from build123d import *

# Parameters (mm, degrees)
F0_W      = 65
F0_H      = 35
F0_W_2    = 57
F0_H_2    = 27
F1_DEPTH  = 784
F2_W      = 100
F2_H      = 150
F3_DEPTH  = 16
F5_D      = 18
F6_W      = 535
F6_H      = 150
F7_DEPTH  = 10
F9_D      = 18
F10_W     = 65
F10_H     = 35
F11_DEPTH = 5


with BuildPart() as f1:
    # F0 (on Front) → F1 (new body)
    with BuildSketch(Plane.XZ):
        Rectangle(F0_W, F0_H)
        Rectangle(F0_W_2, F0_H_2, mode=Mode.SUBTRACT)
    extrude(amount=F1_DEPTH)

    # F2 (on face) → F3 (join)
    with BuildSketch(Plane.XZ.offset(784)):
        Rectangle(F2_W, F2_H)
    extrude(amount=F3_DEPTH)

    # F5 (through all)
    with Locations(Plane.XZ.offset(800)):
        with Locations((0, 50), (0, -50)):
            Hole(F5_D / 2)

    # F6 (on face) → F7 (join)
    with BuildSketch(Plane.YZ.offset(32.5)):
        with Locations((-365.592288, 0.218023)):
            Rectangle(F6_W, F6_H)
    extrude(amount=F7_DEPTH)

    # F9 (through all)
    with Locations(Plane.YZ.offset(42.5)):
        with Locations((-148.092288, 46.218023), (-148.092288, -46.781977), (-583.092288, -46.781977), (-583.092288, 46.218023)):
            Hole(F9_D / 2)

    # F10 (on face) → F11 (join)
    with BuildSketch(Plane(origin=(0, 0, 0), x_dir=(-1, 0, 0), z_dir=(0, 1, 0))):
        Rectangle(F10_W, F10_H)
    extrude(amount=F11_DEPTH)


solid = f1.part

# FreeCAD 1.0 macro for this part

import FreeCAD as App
import Part
import Sketcher
Q = App.Units.Quantity

doc = App.newDocument("Part")
body = doc.addObject("PartDesign::Body", "Body")

sketch1 = doc.addObject("Sketcher::SketchObject", "Sketch")
body.addObject(sketch1)
sketch1.AttachmentSupport = (doc.XZ_Plane, [""])
sketch1.MapMode = "FlatFace"
sketch1.addGeometry(Part.LineSegment(App.Vector(-32, 18, 0), App.Vector(-32, -18, 0)), False)
sketch1.addGeometry(Part.LineSegment(App.Vector(-32, -18, 0), App.Vector(32, -18, 0)), False)
sketch1.addGeometry(Part.LineSegment(App.Vector(32, -18, 0), App.Vector(32, 18, 0)), False)
sketch1.addGeometry(Part.LineSegment(App.Vector(32, 18, 0), App.Vector(-32, 18, 0)), False)
sketch1.addGeometry(Part.LineSegment(App.Vector(28, -14, 0), App.Vector(-28, -14, 0)), False)
sketch1.addGeometry(Part.LineSegment(App.Vector(-28, -14, 0), App.Vector(-28, 14, 0)), False)
sketch1.addGeometry(Part.LineSegment(App.Vector(-28, 14, 0), App.Vector(28, 14, 0)), False)
sketch1.addGeometry(Part.LineSegment(App.Vector(28, 14, 0), App.Vector(28, -14, 0)), False)
sketch1.addConstraint(Sketcher.Constraint("Coincident", 0, 2, 1, 1))
sketch1.addConstraint(Sketcher.Constraint("Coincident", 1, 2, 2, 1))
sketch1.addConstraint(Sketcher.Constraint("Coincident", 2, 2, 3, 1))
sketch1.addConstraint(Sketcher.Constraint("Coincident", 3, 2, 0, 1))
sketch1.addConstraint(Sketcher.Constraint("Coincident", 4, 2, 5, 1))
sketch1.addConstraint(Sketcher.Constraint("Coincident", 5, 2, 6, 1))
sketch1.addConstraint(Sketcher.Constraint("Coincident", 6, 2, 7, 1))
sketch1.addConstraint(Sketcher.Constraint("Coincident", 7, 2, 4, 1))
sketch1.addConstraint(Sketcher.Constraint("Vertical", 0))
sketch1.addConstraint(Sketcher.Constraint("Horizontal", 1))
sketch1.addConstraint(Sketcher.Constraint("Vertical", 2))
sketch1.addConstraint(Sketcher.Constraint("Horizontal", 3))
sketch1.addConstraint(Sketcher.Constraint("Horizontal", 4))
sketch1.addConstraint(Sketcher.Constraint("Vertical", 5))
sketch1.addConstraint(Sketcher.Constraint("Horizontal", 6))
sketch1.addConstraint(Sketcher.Constraint("Vertical", 7))
sketch1.addConstraint(Sketcher.Constraint("Symmetric", 0, 2, 2, 2, -1, 1))
sketch1.addConstraint(Sketcher.Constraint("Symmetric", 4, 2, 6, 2, -1, 1))
sketch1.addConstraint(Sketcher.Constraint("DistanceX", 1, 1, 1, 2, Q("65 mm")))
sketch1.addConstraint(Sketcher.Constraint("DistanceX", 4, 2, 4, 1, Q("57 mm")))
sketch1.addConstraint(Sketcher.Constraint("DistanceY", 0, 2, 0, 1, Q("35 mm")))
sketch1.addConstraint(Sketcher.Constraint("DistanceY", 5, 1, 5, 2, Q("27 mm")))
pad1 = doc.addObject("PartDesign::Pad", "Pad")
body.addObject(pad1)
pad1.Profile = sketch1
pad1.Length = 784

sketch2 = doc.addObject("Sketcher::SketchObject", "Sketch001")
body.addObject(sketch2)
sketch2.AttachmentSupport = (doc.XZ_Plane, [""])
sketch2.MapMode = "FlatFace"
sketch2.AttachmentOffset = App.Placement(App.Vector(0, 0, 784), App.Rotation())
sketch2.addGeometry(Part.LineSegment(App.Vector(-50, 75, 0), App.Vector(-50, -75, 0)), False)
sketch2.addGeometry(Part.LineSegment(App.Vector(-50, -75, 0), App.Vector(50, -75, 0)), False)
sketch2.addGeometry(Part.LineSegment(App.Vector(50, -75, 0), App.Vector(50, 75, 0)), False)
sketch2.addGeometry(Part.LineSegment(App.Vector(50, 75, 0), App.Vector(-50, 75, 0)), False)
sketch2.addConstraint(Sketcher.Constraint("Coincident", 0, 2, 1, 1))
sketch2.addConstraint(Sketcher.Constraint("Coincident", 1, 2, 2, 1))
sketch2.addConstraint(Sketcher.Constraint("Coincident", 2, 2, 3, 1))
sketch2.addConstraint(Sketcher.Constraint("Coincident", 3, 2, 0, 1))
sketch2.addConstraint(Sketcher.Constraint("Vertical", 0))
sketch2.addConstraint(Sketcher.Constraint("Horizontal", 1))
sketch2.addConstraint(Sketcher.Constraint("Vertical", 2))
sketch2.addConstraint(Sketcher.Constraint("Horizontal", 3))
sketch2.addConstraint(Sketcher.Constraint("Symmetric", 0, 2, 2, 2, -1, 1))
sketch2.addConstraint(Sketcher.Constraint("DistanceX", 1, 1, 1, 2, Q("100 mm")))
sketch2.addConstraint(Sketcher.Constraint("DistanceY", 0, 2, 0, 1, Q("150 mm")))
pad2 = doc.addObject("PartDesign::Pad", "Pad001")
body.addObject(pad2)
pad2.Profile = sketch2
pad2.Length = 16

sketch3 = doc.addObject("Sketcher::SketchObject", "Sketch002")
body.addObject(sketch3)
sketch3.AttachmentSupport = (doc.XZ_Plane, [""])
sketch3.MapMode = "FlatFace"
sketch3.AttachmentOffset = App.Placement(App.Vector(0, 0, 800), App.Rotation())
sketch3.addGeometry(Part.Circle(App.Vector(0, 50, 0), App.Vector(0, 0, 1), 9), False)
sketch3.addGeometry(Part.Circle(App.Vector(0, -50, 0), App.Vector(0, 0, 1), 9), False)
sketch3.addConstraint(Sketcher.Constraint("Equal", 0, 1))
sketch3.addConstraint(Sketcher.Constraint("Symmetric", 0, 3, 1, 3, -1, 1))
sketch3.addConstraint(Sketcher.Constraint("PointOnObject", 0, 3, -2))
sketch3.addConstraint(Sketcher.Constraint("Diameter", 0, Q("18 mm")))
sketch3.addConstraint(Sketcher.Constraint("DistanceY", -1, 1, 0, 3, Q("50 mm")))
doc.recompute()
hole = doc.addObject("PartDesign::Hole", "Hole")
body.addObject(hole)
hole.Profile = sketch3
hole.ThreadType = "None"
hole.Diameter = 18
hole.DepthType = "ThroughAll"

sketch4 = doc.addObject("Sketcher::SketchObject", "Sketch003")
body.addObject(sketch4)
sketch4.AttachmentSupport = (doc.YZ_Plane, [""])
sketch4.MapMode = "FlatFace"
sketch4.AttachmentOffset = App.Placement(App.Vector(0, 0, 32.5), App.Rotation())
sketch4.addGeometry(Part.LineSegment(App.Vector(-633, 75, 0), App.Vector(-633, -75, 0)), False)
sketch4.addGeometry(Part.LineSegment(App.Vector(-633, -75, 0), App.Vector(-98, -75, 0)), False)
sketch4.addGeometry(Part.LineSegment(App.Vector(-98, -75, 0), App.Vector(-98, 75, 0)), False)
sketch4.addGeometry(Part.LineSegment(App.Vector(-98, 75, 0), App.Vector(-633, 75, 0)), False)
sketch4.addConstraint(Sketcher.Constraint("Coincident", 0, 2, 1, 1))
sketch4.addConstraint(Sketcher.Constraint("Coincident", 1, 2, 2, 1))
sketch4.addConstraint(Sketcher.Constraint("Coincident", 2, 2, 3, 1))
sketch4.addConstraint(Sketcher.Constraint("Coincident", 3, 2, 0, 1))
sketch4.addConstraint(Sketcher.Constraint("Vertical", 0))
sketch4.addConstraint(Sketcher.Constraint("Horizontal", 1))
sketch4.addConstraint(Sketcher.Constraint("Vertical", 2))
sketch4.addConstraint(Sketcher.Constraint("Horizontal", 3))
sketch4.addConstraint(Sketcher.Constraint("DistanceX", 1, 1, 1, 2, Q("535 mm")))
sketch4.addConstraint(Sketcher.Constraint("DistanceY", 0, 2, 0, 1, Q("150 mm")))
sketch4.addConstraint(Sketcher.Constraint("DistanceX", 0, 2, -1, 1, Q("633.092288 mm")))
sketch4.addConstraint(Sketcher.Constraint("DistanceY", 0, 2, -1, 1, Q("74.781977 mm")))
pad3 = doc.addObject("PartDesign::Pad", "Pad002")
body.addObject(pad3)
pad3.Profile = sketch4
pad3.Length = 10

sketch5 = doc.addObject("Sketcher::SketchObject", "Sketch004")
body.addObject(sketch5)
sketch5.AttachmentSupport = (doc.YZ_Plane, [""])
sketch5.MapMode = "FlatFace"
sketch5.AttachmentOffset = App.Placement(App.Vector(0, 0, 42.5), App.Rotation())
sketch5.addGeometry(Part.Circle(App.Vector(-148, 46, 0), App.Vector(0, 0, 1), 9), False)
sketch5.addGeometry(Part.Circle(App.Vector(-148, -47, 0), App.Vector(0, 0, 1), 9), False)
sketch5.addGeometry(Part.Circle(App.Vector(-583, -47, 0), App.Vector(0, 0, 1), 9), False)
sketch5.addGeometry(Part.Circle(App.Vector(-583, 46, 0), App.Vector(0, 0, 1), 9), False)
sketch5.addConstraint(Sketcher.Constraint("Equal", 0, 1))
sketch5.addConstraint(Sketcher.Constraint("Equal", 1, 2))
sketch5.addConstraint(Sketcher.Constraint("Equal", 2, 3))
sketch5.addConstraint(Sketcher.Constraint("Horizontal", 1, 3, 2, 3))
sketch5.addConstraint(Sketcher.Constraint("Horizontal", 0, 3, 3, 3))
sketch5.addConstraint(Sketcher.Constraint("Vertical", 0, 3, 1, 3))
sketch5.addConstraint(Sketcher.Constraint("Vertical", 2, 3, 3, 3))
sketch5.addConstraint(Sketcher.Constraint("Diameter", 0, Q("18 mm")))
sketch5.addConstraint(Sketcher.Constraint("DistanceY", 1, 3, 0, 3, Q("93 mm")))
sketch5.addConstraint(Sketcher.Constraint("DistanceX", 2, 3, 1, 3, Q("435 mm")))
sketch5.addConstraint(Sketcher.Constraint("DistanceX", 0, 3, -1, 1, Q("148.092288 mm")))
sketch5.addConstraint(Sketcher.Constraint("DistanceY", -1, 1, 0, 3, Q("46.218023 mm")))
doc.recompute()
hole2 = doc.addObject("PartDesign::Hole", "Hole001")
body.addObject(hole2)
hole2.Profile = sketch5
hole2.ThreadType = "None"
hole2.Diameter = 18
hole2.DepthType = "ThroughAll"

sketch6 = doc.addObject("Sketcher::SketchObject", "Sketch005")
body.addObject(sketch6)
sketch6.AttachmentSupport = (doc.XZ_Plane, [""])
sketch6.MapMode = "FlatFace"
sketch6.addGeometry(Part.LineSegment(App.Vector(32, 18, 0), App.Vector(32, -18, 0)), False)
sketch6.addGeometry(Part.LineSegment(App.Vector(32, -18, 0), App.Vector(-32, -18, 0)), False)
sketch6.addGeometry(Part.LineSegment(App.Vector(-32, -18, 0), App.Vector(-32, 18, 0)), False)
sketch6.addGeometry(Part.LineSegment(App.Vector(-32, 18, 0), App.Vector(32, 18, 0)), False)
sketch6.addConstraint(Sketcher.Constraint("Coincident", 0, 2, 1, 1))
sketch6.addConstraint(Sketcher.Constraint("Coincident", 1, 2, 2, 1))
sketch6.addConstraint(Sketcher.Constraint("Coincident", 2, 2, 3, 1))
sketch6.addConstraint(Sketcher.Constraint("Coincident", 3, 2, 0, 1))
sketch6.addConstraint(Sketcher.Constraint("Vertical", 0))
sketch6.addConstraint(Sketcher.Constraint("Horizontal", 1))
sketch6.addConstraint(Sketcher.Constraint("Vertical", 2))
sketch6.addConstraint(Sketcher.Constraint("Horizontal", 3))
sketch6.addConstraint(Sketcher.Constraint("Symmetric", 0, 2, 2, 2, -1, 1))
sketch6.addConstraint(Sketcher.Constraint("DistanceX", 1, 2, 1, 1, Q("65 mm")))
sketch6.addConstraint(Sketcher.Constraint("DistanceY", 0, 2, 0, 1, Q("35 mm")))
pad4 = doc.addObject("PartDesign::Pad", "Pad003")
body.addObject(pad4)
pad4.Profile = sketch6
pad4.Length = 5
pad4.Reversed = True

doc.recompute()
